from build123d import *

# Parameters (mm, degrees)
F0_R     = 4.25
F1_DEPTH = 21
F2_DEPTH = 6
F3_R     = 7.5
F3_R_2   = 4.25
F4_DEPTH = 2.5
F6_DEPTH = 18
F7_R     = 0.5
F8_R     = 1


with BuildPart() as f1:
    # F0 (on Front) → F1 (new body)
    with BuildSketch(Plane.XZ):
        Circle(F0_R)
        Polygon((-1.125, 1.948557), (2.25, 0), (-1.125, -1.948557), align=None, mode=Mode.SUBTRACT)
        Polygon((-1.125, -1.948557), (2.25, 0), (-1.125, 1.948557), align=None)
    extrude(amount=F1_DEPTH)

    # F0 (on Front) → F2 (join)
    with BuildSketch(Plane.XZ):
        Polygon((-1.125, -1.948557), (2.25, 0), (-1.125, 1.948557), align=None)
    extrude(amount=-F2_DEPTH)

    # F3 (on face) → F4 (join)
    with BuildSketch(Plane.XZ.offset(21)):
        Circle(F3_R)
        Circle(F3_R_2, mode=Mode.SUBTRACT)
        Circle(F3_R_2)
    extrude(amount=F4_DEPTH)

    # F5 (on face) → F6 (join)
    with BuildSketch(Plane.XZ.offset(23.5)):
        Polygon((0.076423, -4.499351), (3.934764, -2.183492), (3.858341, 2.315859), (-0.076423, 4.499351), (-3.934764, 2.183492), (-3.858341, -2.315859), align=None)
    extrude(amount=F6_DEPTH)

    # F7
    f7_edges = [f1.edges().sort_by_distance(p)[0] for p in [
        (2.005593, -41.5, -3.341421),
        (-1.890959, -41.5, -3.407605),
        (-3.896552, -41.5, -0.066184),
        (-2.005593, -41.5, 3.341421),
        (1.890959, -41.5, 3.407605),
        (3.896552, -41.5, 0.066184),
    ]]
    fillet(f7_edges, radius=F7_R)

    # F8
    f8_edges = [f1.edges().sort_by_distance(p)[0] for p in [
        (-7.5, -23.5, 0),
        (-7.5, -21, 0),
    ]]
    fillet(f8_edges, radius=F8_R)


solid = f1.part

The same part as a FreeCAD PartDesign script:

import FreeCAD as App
import Part
import Sketcher

V = App.Vector
Q = App.Units.Quantity


def edges_at(feature, points):
    """Names of the edges that pass closest to the given points."""
    edges = feature.Shape.Edges
    near = lambda p: min(range(len(edges)), key=lambda i: edges[i].distToShape(Part.Vertex(*p))[0])
    return sorted({f"Edge{near(p) + 1}" for p in points})

doc = App.newDocument("Part")
params = doc.addObject("Spreadsheet::Sheet", "Params")
for row, (alias, value) in enumerate([
    ("sketch1_diameter", "8.5 mm"),
    ("pad1_length", "21 mm"),
    ("pad2_length", "6 mm"),
    ("sketch3_diameter", "15 mm"),
    ("pad3_length", "2.5 mm"),
    ("sketch4_length", "4.5 mm"),
    ("pad4_length", "18 mm"),
    ("fillet_radius", "0.5 mm"),
    ("fillet2_radius", "1 mm"),
], start=1):
    params.set(f"A{row}", alias)
    params.set(f"B{row}", "=" + value)
    params.setAlias(f"B{row}", alias)

body = doc.addObject("PartDesign::Body", "Body")

sketch1 = body.newObject("Sketcher::SketchObject", "Sketch")
sketch1.AttachmentSupport = (doc.getObject("XZ_Plane"), [""])
sketch1.MapMode = "FlatFace"
sketch1.addGeometry(Part.Circle(V(0, 0, 0), V(0, 0, 1), 4.2), False)
sketch1.addConstraint(Sketcher.Constraint("Coincident", 0, 3, -1, 1))
sketch1.addConstraint(Sketcher.Constraint("Diameter", 0, Q("8.5 mm")))
sketch1.setExpression("Constraints[1]", "Params.sketch1_diameter")
pad1 = body.newObject("PartDesign::Pad", "Pad")
pad1.Profile = sketch1
pad1.setExpression("Length", "Params.pad1_length")

sketch2 = body.newObject("Sketcher::SketchObject", "Sketch001")
sketch2.AttachmentSupport = (doc.getObject("XZ_Plane"), [""])
sketch2.MapMode = "FlatFace"
sketch2.addGeometry(Part.LineSegment(V(-1.1, -1.9, 0), V(2.2, 0, 0)), False)
sketch2.addGeometry(Part.LineSegment(V(2.2, 0, 0), V(-1.1, 1.9, 0)), False)
sketch2.addGeometry(Part.LineSegment(V(-1.1, 1.9, 0), V(-1.1, -1.9, 0)), False)
sketch2.addConstraint(Sketcher.Constraint("Coincident", 0, 2, 1, 1))
sketch2.addConstraint(Sketcher.Constraint("Coincident", 1, 2, 2, 1))
sketch2.addConstraint(Sketcher.Constraint("Coincident", 2, 2, 0, 1))
sketch2.addConstraint(Sketcher.Constraint("Vertical", 2))
sketch2.addConstraint(Sketcher.Constraint("PointOnObject", 0, 2, -1))
sketch2.addConstraint(Sketcher.Constraint("Equal", 0, 1))
sketch2.addConstraint(Sketcher.Constraint("Angle", 0, Q("29.999998 deg")))
sketch2.addConstraint(Sketcher.Constraint("DistanceX", -1, 1, 0, 2, Q("2.25 mm")))
sketch2.addConstraint(Sketcher.Constraint("DistanceX", 1, 2, -1, 1, Q("1.125 mm")))
pad2 = body.newObject("PartDesign::Pad", "Pad001")
pad2.Profile = sketch2
pad2.setExpression("Length", "Params.pad2_length")
pad2.Reversed = True

sketch3 = body.newObject("Sketcher::SketchObject", "Sketch002")
sketch3.AttachmentSupport = (doc.getObject("XZ_Plane"), [""])
sketch3.MapMode = "FlatFace"
sketch3.AttachmentOffset = App.Placement(V(0, 0, 21), App.Rotation())
sketch3.addGeometry(Part.Circle(V(0, 0, 0), V(0, 0, 1), 8), False)
sketch3.addConstraint(Sketcher.Constraint("Coincident", 0, 3, -1, 1))
sketch3.addConstraint(Sketcher.Constraint("Diameter", 0, Q("15 mm")))
sketch3.setExpression("Constraints[1]", "Params.sketch3_diameter")
pad3 = body.newObject("PartDesign::Pad", "Pad002")
pad3.Profile = sketch3
pad3.setExpression("Length", "Params.pad3_length")

sketch4 = body.newObject("Sketcher::SketchObject", "Sketch003")
sketch4.AttachmentSupport = (doc.getObject("XZ_Plane"), [""])
sketch4.MapMode = "FlatFace"
sketch4.AttachmentOffset = App.Placement(V(0, 0, 23.5), App.Rotation())
sketch4.addGeometry(Part.LineSegment(V(0.1, -4.5, 0), V(3.9, -2.2, 0)), False)
sketch4.addGeometry(Part.LineSegment(V(3.9, -2.2, 0), V(3.9, 2.3, 0)), False)
sketch4.addGeometry(Part.LineSegment(V(3.9, 2.3, 0), V(-0.1, 4.5, 0)), False)
sketch4.addGeometry(Part.LineSegment(V(-0.1, 4.5, 0), V(-3.9, 2.2, 0)), False)
sketch4.addGeometry(Part.LineSegment(V(-3.9, 2.2, 0), V(-3.9, -2.3, 0)), False)
sketch4.addGeometry(Part.LineSegment(V(-3.9, -2.3, 0), V(0.1, -4.5, 0)), False)
sketch4.addConstraint(Sketcher.Constraint("Coincident", 0, 2, 1, 1))
sketch4.addConstraint(Sketcher.Constraint("Coincident", 1, 2, 2, 1))
sketch4.addConstraint(Sketcher.Constraint("Coincident", 2, 2, 3, 1))
sketch4.addConstraint(Sketcher.Constraint("Coincident", 3, 2, 4, 1))
sketch4.addConstraint(Sketcher.Constraint("Coincident", 4, 2, 5, 1))
sketch4.addConstraint(Sketcher.Constraint("Coincident", 5, 2, 0, 1))
sketch4.addConstraint(Sketcher.Constraint("Symmetric", 0, 2, 3, 2, -1, 1))
sketch4.addConstraint(Sketcher.Constraint("Symmetric", 1, 2, 4, 2, -1, 1))
sketch4.addConstraint(Sketcher.Constraint("Symmetric", 2, 2, 5, 2, -1, 1))
sketch4.addConstraint(Sketcher.Constraint("Equal", 0, 1))
sketch4.addConstraint(Sketcher.Constraint("Equal", 1, 2))
sketch4.addConstraint(Sketcher.Constraint("Distance", 0, Q("4.5 mm")))
sketch4.addConstraint(Sketcher.Constraint("DistanceX", -1, 1, 1, 2, Q("3.858341 mm")))
sketch4.addConstraint(Sketcher.Constraint("DistanceY", -1, 1, 1, 2, Q("2.315859 mm")))
sketch4.addConstraint(Sketcher.Constraint("DistanceY", -1, 1, 2, 2, Q("4.499351 mm")))
sketch4.setExpression("Constraints[11]", "Params.sketch4_length")
pad4 = body.newObject("PartDesign::Pad", "Pad003")
pad4.Profile = sketch4
pad4.setExpression("Length", "Params.pad4_length")
doc.recompute()

fillet = body.newObject("PartDesign::Fillet", "Fillet")
fillet.Base = (pad4, edges_at(pad4, [
    (2.006, -41.5, -3.341),
    (-1.891, -41.5, -3.408),
    (-3.897, -41.5, -0.066),
    (-2.006, -41.5, 3.341),
    (1.891, -41.5, 3.408),
    (3.897, -41.5, 0.066),
]))
fillet.setExpression("Radius", "Params.fillet_radius")
doc.recompute()

fillet2 = body.newObject("PartDesign::Fillet", "Fillet001")
fillet2.Base = (fillet, edges_at(fillet, [(-7.5, -23.5, 0), (-7.5, -21, 0)]))
fillet2.setExpression("Radius", "Params.fillet2_radius")

doc.recompute()
